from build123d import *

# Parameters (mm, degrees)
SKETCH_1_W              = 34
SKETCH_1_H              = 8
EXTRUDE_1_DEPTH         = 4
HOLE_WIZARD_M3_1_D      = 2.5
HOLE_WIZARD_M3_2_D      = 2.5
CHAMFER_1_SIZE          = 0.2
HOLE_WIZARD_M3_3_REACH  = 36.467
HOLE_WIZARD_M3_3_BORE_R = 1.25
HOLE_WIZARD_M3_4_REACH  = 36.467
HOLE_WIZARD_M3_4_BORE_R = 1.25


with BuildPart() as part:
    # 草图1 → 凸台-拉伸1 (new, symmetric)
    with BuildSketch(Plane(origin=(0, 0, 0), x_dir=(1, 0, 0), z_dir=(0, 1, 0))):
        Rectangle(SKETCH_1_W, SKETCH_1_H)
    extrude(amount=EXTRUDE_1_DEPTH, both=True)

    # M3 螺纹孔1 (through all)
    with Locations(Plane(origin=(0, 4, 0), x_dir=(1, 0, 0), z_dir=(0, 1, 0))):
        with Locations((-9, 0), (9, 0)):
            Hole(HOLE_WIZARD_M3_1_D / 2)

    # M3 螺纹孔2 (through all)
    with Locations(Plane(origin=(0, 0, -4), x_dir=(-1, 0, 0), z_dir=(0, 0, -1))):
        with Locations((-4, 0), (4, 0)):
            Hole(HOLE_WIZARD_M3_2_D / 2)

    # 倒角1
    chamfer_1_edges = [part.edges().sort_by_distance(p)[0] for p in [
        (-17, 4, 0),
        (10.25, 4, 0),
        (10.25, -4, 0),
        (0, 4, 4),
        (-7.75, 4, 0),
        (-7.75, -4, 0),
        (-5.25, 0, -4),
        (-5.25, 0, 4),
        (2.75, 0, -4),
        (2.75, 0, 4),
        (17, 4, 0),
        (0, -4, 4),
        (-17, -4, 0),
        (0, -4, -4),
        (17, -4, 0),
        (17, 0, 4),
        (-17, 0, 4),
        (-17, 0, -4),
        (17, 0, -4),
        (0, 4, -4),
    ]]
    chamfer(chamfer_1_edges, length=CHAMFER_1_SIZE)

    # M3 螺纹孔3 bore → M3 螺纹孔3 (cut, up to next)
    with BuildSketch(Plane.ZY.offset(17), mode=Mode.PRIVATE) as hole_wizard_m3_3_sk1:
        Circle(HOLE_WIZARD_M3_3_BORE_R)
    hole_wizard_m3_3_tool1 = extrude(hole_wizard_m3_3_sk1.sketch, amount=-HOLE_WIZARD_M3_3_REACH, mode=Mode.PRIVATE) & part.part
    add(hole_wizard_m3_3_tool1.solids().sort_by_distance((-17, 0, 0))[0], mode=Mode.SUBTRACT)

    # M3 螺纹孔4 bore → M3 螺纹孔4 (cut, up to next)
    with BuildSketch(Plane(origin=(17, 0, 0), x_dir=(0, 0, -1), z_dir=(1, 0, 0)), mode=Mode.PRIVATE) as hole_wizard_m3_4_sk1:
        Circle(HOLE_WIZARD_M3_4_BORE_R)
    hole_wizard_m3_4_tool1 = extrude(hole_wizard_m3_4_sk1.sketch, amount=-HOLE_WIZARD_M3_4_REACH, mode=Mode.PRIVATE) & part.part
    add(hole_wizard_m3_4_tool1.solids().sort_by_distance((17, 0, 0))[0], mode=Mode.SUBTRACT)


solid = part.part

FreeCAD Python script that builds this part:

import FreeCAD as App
import Part
import Sketcher
from FreeCAD import Vector

doc = App.newDocument("Part")
params = doc.addObject("Spreadsheet::Sheet", "Params")
for row, (alias, value) in enumerate([
    ("sketch1_width", "34 mm"),
    ("sketch1_height", "8 mm"),
    ("pad1_length", "8 mm"),
    ("sketch2_diameter", "2.5 mm"),
    ("hole_diameter", "2.5 mm"),
    ("sketch3_diameter", "2.5 mm"),
    ("hole2_diameter", "2.5 mm"),
    ("chamfer_size", "0.2 mm"),
    ("sketch4_diameter", "2.5 mm"),
    ("pocket1_length", "8 mm"),
    ("sketch5_diameter", "2.5 mm"),
], start=1):
    params.set(f"A{row}", alias)
    params.set(f"B{row}", "=" + value)
    params.setAlias(f"B{row}", alias)

body = doc.addObject("PartDesign::Body", "Body")

# Sketch on XZ plane
sketch1 = doc.addObject("Sketcher::SketchObject", "Sketch")
body.addObject(sketch1)
sketch1.AttachmentSupport = (doc.XZ_Plane, [""])
sketch1.MapMode = "FlatFace"
sketch1.addGeometry(Part.LineSegment(Vector(-17, -4, 0), Vector(-17, 4, 0)), False)
sketch1.addGeometry(Part.LineSegment(Vector(-17, 4, 0), Vector(17, 4, 0)), False)
sketch1.addGeometry(Part.LineSegment(Vector(17, 4, 0), Vector(17, -4, 0)), False)
sketch1.addGeometry(Part.LineSegment(Vector(17, -4, 0), Vector(-17, -4, 0)), False)
sketch1.addConstraint(Sketcher.Constraint("Coincident", 0, 2, 1, 1))
sketch1.addConstraint(Sketcher.Constraint("Coincident", 1, 2, 2, 1))
sketch1.addConstraint(Sketcher.Constraint("Coincident", 2, 2, 3, 1))
sketch1.addConstraint(Sketcher.Constraint("Coincident", 3, 2, 0, 1))
sketch1.addConstraint(Sketcher.Constraint("Vertical", 0))
sketch1.addConstraint(Sketcher.Constraint("Horizontal", 1))
sketch1.addConstraint(Sketcher.Constraint("Vertical", 2))
sketch1.addConstraint(Sketcher.Constraint("Horizontal", 3))
sketch1.addConstraint(Sketcher.Constraint("Symmetric", 0, 2, 2, 2, -1, 1))
sketch1.addConstraint(Sketcher.Constraint("DistanceX", 1, 1, 1, 2, 34.0))
sketch1.addConstraint(Sketcher.Constraint("DistanceY", 0, 1, 0, 2, 8.0))
sketch1.setExpression("Constraints[9]", "Params.sketch1_width")
sketch1.setExpression("Constraints[10]", "Params.sketch1_height")
pad1 = doc.addObject("PartDesign::Pad", "Pad")
body.addObject(pad1)
pad1.Profile = sketch1
pad1.setExpression("Length", "Params.pad1_length")
pad1.Midplane = True

# Sketch on XZ plane
sketch2 = doc.addObject("Sketcher::SketchObject", "Sketch001")
body.addObject(sketch2)
sketch2.AttachmentSupport = (doc.XZ_Plane, [""])
sketch2.MapMode = "FlatFace"
sketch2.AttachmentOffset = App.Placement(Vector(0, 0, -4), App.Rotation())
sketch2.addGeometry(Part.Circle(Vector(-9, 0, 0), Vector(0, 0, 1), 1.2), False)
sketch2.addGeometry(Part.Circle(Vector(9, 0, 0), Vector(0, 0, 1), 1.2), False)
sketch2.addConstraint(Sketcher.Constraint("Equal", 0, 1))
sketch2.addConstraint(Sketcher.Constraint("Symmetric", 0, 3, 1, 3, -1, 1))
sketch2.addConstraint(Sketcher.Constraint("PointOnObject", 0, 3, -1))
sketch2.addConstraint(Sketcher.Constraint("Diameter", 0, 2.5))
sketch2.addConstraint(Sketcher.Constraint("DistanceX", 0, 3, -1, 1, 9.0))
sketch2.setExpression("Constraints[3]", "Params.sketch2_diameter")
doc.recompute()
hole = doc.addObject("PartDesign::Hole", "Hole")
body.addObject(hole)
hole.Profile = sketch2
hole.ThreadType = "None"
hole.setExpression("Diameter", "Params.hole_diameter")
hole.DepthType = "ThroughAll"
hole.Reversed = True

# Sketch on XY plane
sketch3 = doc.addObject("Sketcher::SketchObject", "Sketch002")
body.addObject(sketch3)
sketch3.AttachmentSupport = (doc.XY_Plane, [""])
sketch3.MapMode = "FlatFace"
sketch3.AttachmentOffset = App.Placement(Vector(0, 0, -4), App.Rotation())
sketch3.addGeometry(Part.Circle(Vector(4, 0, 0), Vector(0, 0, 1), 1.2), False)
sketch3.addGeometry(Part.Circle(Vector(-4, 0, 0), Vector(0, 0, 1), 1.2), False)
sketch3.addConstraint(Sketcher.Constraint("Equal", 0, 1))
sketch3.addConstraint(Sketcher.Constraint("Symmetric", 0, 3, 1, 3, -1, 1))
sketch3.addConstraint(Sketcher.Constraint("PointOnObject", 0, 3, -1))
sketch3.addConstraint(Sketcher.Constraint("Diameter", 0, 2.5))
sketch3.addConstraint(Sketcher.Constraint("DistanceX", -1, 1, 0, 3, 4.0))
sketch3.setExpression("Constraints[3]", "Params.sketch3_diameter")
doc.recompute()
hole2 = doc.addObject("PartDesign::Hole", "Hole001")
body.addObject(hole2)
hole2.Profile = sketch3
hole2.ThreadType = "None"
hole2.setExpression("Diameter", "Params.hole2_diameter")
hole2.DepthType = "ThroughAll"
hole2.Reversed = True
doc.recompute()

chamfer = doc.addObject("PartDesign::Chamfer", "Chamfer")
body.addObject(chamfer)
chamfer.Base = (hole2, ["Edge1"])
chamfer.UseAllEdges = True
chamfer.setExpression("Size", "Params.chamfer_size")

# Sketch on YZ plane
sketch4 = doc.addObject("Sketcher::SketchObject", "Sketch003")
body.addObject(sketch4)
sketch4.AttachmentSupport = (doc.YZ_Plane, [""])
sketch4.MapMode = "FlatFace"
sketch4.AttachmentOffset = App.Placement(Vector(0, 0, -17), App.Rotation())
sketch4.addGeometry(Part.Circle(Vector(0, 0, 0), Vector(0, 0, 1), 1.2), False)
sketch4.addConstraint(Sketcher.Constraint("Coincident", 0, 3, -1, 1))
sketch4.addConstraint(Sketcher.Constraint("Diameter", 0, 2.5))
sketch4.setExpression("Constraints[1]", "Params.sketch4_diameter")
pocket1 = doc.addObject("PartDesign::Pocket", "Pocket")
body.addObject(pocket1)
pocket1.Profile = sketch4
pocket1.setExpression("Length", "Params.pocket1_length")
pocket1.Reversed = True

# Sketch on YZ plane
sketch5 = doc.addObject("Sketcher::SketchObject", "Sketch004")
body.addObject(sketch5)
sketch5.AttachmentSupport = (doc.YZ_Plane, [""])
sketch5.MapMode = "FlatFace"
sketch5.AttachmentOffset = App.Placement(Vector(0, 0, 17), App.Rotation())
sketch5.addGeometry(Part.Circle(Vector(0, 0, 0), Vector(0, 0, 1), 1.2), False)
sketch5.addConstraint(Sketcher.Constraint("Coincident", 0, 3, -1, 1))
sketch5.addConstraint(Sketcher.Constraint("Diameter", 0, 2.5))
sketch5.setExpression("Constraints[1]", "Params.sketch5_diameter")
pocket2 = doc.addObject("PartDesign::Pocket", "Pocket001")
body.addObject(pocket2)
pocket2.Profile = sketch5
pocket2.Type = "UpToFirst"

doc.recompute()
